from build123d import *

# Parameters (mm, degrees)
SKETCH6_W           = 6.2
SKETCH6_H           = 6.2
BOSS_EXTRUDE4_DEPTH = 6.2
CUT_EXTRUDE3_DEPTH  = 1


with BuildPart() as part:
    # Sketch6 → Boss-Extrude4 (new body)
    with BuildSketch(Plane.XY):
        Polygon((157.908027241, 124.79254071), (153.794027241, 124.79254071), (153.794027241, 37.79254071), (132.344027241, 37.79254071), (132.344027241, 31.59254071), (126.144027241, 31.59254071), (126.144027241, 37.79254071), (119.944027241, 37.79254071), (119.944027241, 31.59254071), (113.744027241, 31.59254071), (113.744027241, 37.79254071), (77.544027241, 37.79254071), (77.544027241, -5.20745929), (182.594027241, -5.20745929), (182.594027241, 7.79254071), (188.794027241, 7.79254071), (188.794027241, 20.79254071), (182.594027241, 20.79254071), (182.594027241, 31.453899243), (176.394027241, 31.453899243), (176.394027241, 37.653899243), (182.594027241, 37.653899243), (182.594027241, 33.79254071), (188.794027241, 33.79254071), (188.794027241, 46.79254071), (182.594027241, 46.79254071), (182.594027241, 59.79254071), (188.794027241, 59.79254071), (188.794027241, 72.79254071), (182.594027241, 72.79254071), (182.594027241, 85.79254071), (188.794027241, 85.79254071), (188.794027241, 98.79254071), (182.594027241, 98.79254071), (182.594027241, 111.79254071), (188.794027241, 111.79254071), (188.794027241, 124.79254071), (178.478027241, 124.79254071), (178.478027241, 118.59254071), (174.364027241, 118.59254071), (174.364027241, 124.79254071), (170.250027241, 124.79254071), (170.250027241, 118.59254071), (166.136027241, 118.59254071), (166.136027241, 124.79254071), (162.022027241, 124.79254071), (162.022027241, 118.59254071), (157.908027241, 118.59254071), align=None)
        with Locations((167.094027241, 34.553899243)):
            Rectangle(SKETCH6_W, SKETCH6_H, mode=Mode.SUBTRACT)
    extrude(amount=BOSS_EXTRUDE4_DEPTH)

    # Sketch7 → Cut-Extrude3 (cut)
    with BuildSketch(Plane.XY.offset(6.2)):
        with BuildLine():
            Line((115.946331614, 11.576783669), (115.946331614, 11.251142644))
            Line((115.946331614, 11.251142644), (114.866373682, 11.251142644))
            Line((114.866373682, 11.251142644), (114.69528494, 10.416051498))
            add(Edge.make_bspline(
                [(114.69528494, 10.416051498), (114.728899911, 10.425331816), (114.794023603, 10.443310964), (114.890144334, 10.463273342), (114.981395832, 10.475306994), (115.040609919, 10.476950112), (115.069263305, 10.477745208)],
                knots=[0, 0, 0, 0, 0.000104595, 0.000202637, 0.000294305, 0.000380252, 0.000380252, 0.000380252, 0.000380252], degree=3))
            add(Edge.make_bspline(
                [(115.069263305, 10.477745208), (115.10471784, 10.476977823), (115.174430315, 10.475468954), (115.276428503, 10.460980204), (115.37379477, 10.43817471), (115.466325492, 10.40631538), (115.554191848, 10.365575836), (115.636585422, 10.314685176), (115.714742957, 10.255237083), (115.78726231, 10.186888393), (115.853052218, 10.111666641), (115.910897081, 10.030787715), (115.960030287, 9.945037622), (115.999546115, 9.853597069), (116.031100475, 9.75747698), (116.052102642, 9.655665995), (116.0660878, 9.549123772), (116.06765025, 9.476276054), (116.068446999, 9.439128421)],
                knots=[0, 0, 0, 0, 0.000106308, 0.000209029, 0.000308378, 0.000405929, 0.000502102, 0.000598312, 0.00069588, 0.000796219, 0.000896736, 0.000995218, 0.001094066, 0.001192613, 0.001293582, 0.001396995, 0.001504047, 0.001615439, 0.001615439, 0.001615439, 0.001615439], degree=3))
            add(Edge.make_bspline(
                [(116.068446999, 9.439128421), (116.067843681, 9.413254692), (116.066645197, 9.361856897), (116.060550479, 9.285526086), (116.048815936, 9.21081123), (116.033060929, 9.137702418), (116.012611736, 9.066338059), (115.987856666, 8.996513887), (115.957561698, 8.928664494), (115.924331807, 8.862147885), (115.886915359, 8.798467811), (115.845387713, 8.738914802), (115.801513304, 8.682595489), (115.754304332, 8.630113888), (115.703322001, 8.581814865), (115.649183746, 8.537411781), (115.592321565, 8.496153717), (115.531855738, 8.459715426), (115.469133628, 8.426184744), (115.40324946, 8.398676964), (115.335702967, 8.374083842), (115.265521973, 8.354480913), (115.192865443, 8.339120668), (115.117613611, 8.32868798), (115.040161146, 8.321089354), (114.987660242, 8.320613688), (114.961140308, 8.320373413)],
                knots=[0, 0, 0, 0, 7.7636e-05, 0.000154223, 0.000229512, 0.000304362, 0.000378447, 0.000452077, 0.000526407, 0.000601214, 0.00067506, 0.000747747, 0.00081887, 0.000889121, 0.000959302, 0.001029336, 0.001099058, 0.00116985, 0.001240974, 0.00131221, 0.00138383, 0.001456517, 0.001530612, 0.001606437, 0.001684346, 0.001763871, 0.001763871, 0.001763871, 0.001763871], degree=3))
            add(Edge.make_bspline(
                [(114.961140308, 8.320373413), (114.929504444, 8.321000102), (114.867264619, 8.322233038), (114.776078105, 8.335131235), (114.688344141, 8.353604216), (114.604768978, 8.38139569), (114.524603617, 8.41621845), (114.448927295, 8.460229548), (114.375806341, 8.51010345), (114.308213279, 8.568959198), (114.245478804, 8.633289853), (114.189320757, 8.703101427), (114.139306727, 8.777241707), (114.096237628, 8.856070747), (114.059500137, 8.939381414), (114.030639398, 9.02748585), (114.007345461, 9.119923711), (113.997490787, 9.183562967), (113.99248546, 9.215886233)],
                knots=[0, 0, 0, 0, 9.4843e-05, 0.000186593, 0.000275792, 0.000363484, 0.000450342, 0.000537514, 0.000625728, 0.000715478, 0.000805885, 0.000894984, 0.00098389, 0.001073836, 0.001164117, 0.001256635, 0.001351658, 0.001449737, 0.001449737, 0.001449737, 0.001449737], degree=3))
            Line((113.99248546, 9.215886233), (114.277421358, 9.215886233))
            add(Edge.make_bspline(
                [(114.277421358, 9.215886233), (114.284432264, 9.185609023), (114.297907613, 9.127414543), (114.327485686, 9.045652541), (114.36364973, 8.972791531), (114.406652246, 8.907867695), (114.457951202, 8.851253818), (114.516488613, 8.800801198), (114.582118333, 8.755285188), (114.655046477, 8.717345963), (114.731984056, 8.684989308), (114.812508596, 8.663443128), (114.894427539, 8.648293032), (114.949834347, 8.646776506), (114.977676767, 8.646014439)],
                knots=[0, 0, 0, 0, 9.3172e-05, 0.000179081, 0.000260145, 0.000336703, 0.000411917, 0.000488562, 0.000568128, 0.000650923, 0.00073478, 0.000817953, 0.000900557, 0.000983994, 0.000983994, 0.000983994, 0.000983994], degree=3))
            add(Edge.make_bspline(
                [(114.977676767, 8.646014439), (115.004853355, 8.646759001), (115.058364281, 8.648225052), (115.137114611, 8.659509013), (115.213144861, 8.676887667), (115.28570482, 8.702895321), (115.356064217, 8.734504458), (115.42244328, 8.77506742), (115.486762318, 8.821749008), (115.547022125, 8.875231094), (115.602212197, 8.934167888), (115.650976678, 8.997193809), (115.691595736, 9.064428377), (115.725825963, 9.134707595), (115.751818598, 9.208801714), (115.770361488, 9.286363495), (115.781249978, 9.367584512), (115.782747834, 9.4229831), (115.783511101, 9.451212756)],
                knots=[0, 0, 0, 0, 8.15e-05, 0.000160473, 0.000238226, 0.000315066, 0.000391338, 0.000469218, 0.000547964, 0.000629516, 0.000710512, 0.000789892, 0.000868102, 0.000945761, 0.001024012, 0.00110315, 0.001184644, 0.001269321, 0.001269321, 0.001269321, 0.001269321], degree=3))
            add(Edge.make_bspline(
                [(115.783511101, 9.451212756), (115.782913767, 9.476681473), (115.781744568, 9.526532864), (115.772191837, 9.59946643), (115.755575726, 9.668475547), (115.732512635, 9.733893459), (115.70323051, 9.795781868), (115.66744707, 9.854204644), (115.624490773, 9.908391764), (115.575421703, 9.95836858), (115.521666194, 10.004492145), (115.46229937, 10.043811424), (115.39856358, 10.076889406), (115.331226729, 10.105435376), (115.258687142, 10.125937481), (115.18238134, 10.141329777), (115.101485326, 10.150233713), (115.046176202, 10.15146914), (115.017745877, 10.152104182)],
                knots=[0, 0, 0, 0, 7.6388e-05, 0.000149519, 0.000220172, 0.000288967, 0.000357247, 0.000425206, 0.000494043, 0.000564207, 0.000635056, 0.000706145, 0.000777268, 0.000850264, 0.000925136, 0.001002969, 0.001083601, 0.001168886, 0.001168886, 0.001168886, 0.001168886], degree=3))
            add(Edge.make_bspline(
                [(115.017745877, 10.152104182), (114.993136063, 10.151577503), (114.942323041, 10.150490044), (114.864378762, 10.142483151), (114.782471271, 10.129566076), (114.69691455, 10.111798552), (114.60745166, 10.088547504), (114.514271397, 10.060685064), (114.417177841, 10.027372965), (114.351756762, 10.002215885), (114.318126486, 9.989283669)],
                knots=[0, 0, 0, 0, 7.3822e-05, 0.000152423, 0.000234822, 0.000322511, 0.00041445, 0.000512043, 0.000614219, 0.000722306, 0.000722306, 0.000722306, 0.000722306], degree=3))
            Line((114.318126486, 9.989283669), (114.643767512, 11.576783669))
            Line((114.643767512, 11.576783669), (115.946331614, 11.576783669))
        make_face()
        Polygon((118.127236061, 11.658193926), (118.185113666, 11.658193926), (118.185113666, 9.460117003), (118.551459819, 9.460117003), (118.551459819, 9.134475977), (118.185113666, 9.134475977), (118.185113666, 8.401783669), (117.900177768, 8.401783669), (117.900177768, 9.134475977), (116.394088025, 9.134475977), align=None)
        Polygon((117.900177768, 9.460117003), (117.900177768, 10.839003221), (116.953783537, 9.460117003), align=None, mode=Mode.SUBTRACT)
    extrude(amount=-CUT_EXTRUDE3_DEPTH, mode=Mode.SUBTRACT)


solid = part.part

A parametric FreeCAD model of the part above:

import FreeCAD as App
import Part
import Sketcher

doc = App.newDocument("Part")
body = doc.addObject("PartDesign::Body", "Body")

sketch1 = doc.addObject("Sketcher::SketchObject", "Sketch")
body.addObject(sketch1)
sketch1.AttachmentSupport = (doc.XY_Plane, [""])
sketch1.MapMode = "FlatFace"
sketch1.addGeometry([
    Part.LineSegment(App.Vector(157.9, 124.8, 0), App.Vector(153.8, 124.8, 0)),
    Part.LineSegment(App.Vector(153.8, 124.8, 0), App.Vector(153.8, 37.8, 0)),
    Part.LineSegment(App.Vector(153.8, 37.8, 0), App.Vector(132.3, 37.8, 0)),
    Part.LineSegment(App.Vector(132.3, 37.8, 0), App.Vector(132.3, 31.6, 0)),
    Part.LineSegment(App.Vector(132.3, 31.6, 0), App.Vector(126.1, 31.6, 0)),
    Part.LineSegment(App.Vector(126.1, 31.6, 0), App.Vector(126.1, 37.8, 0)),
    Part.LineSegment(App.Vector(126.1, 37.8, 0), App.Vector(119.9, 37.8, 0)),
    Part.LineSegment(App.Vector(119.9, 37.8, 0), App.Vector(119.9, 31.6, 0)),
    Part.LineSegment(App.Vector(119.9, 31.6, 0), App.Vector(113.7, 31.6, 0)),
    Part.LineSegment(App.Vector(113.7, 31.6, 0), App.Vector(113.7, 37.8, 0)),
    Part.LineSegment(App.Vector(113.7, 37.8, 0), App.Vector(77.5, 37.8, 0)),
    Part.LineSegment(App.Vector(77.5, 37.8, 0), App.Vector(77.5, -5.2, 0)),
    Part.LineSegment(App.Vector(77.5, -5.2, 0), App.Vector(182.6, -5.2, 0)),
    Part.LineSegment(App.Vector(182.6, -5.2, 0), App.Vector(182.6, 7.8, 0)),
    Part.LineSegment(App.Vector(182.6, 7.8, 0), App.Vector(188.8, 7.8, 0)),
    Part.LineSegment(App.Vector(188.8, 7.8, 0), App.Vector(188.8, 20.8, 0)),
    Part.LineSegment(App.Vector(188.8, 20.8, 0), App.Vector(182.6, 20.8, 0)),
    Part.LineSegment(App.Vector(182.6, 20.8, 0), App.Vector(182.6, 31.5, 0)),
    Part.LineSegment(App.Vector(182.6, 31.5, 0), App.Vector(176.4, 31.5, 0)),
    Part.LineSegment(App.Vector(176.4, 31.5, 0), App.Vector(176.4, 37.7, 0)),
    Part.LineSegment(App.Vector(176.4, 37.7, 0), App.Vector(182.6, 37.7, 0)),
    Part.LineSegment(App.Vector(182.6, 37.7, 0), App.Vector(182.6, 33.8, 0)),
    Part.LineSegment(App.Vector(182.6, 33.8, 0), App.Vector(188.8, 33.8, 0)),
    Part.LineSegment(App.Vector(188.8, 33.8, 0), App.Vector(188.8, 46.8, 0)),
    Part.LineSegment(App.Vector(188.8, 46.8, 0), App.Vector(182.6, 46.8, 0)),
    Part.LineSegment(App.Vector(182.6, 46.8, 0), App.Vector(182.6, 59.8, 0)),
    Part.LineSegment(App.Vector(182.6, 59.8, 0), App.Vector(188.8, 59.8, 0)),
    Part.LineSegment(App.Vector(188.8, 59.8, 0), App.Vector(188.8, 72.8, 0)),
    Part.LineSegment(App.Vector(188.8, 72.8, 0), App.Vector(182.6, 72.8, 0)),
    Part.LineSegment(App.Vector(182.6, 72.8, 0), App.Vector(182.6, 85.8, 0)),
    Part.LineSegment(App.Vector(182.6, 85.8, 0), App.Vector(188.8, 85.8, 0)),
    Part.LineSegment(App.Vector(188.8, 85.8, 0), App.Vector(188.8, 98.8, 0)),
    Part.LineSegment(App.Vector(188.8, 98.8, 0), App.Vector(182.6, 98.8, 0)),
    Part.LineSegment(App.Vector(182.6, 98.8, 0), App.Vector(182.6, 111.8, 0)),
    Part.LineSegment(App.Vector(182.6, 111.8, 0), App.Vector(188.8, 111.8, 0)),
    Part.LineSegment(App.Vector(188.8, 111.8, 0), App.Vector(188.8, 124.8, 0)),
    Part.LineSegment(App.Vector(188.8, 124.8, 0), App.Vector(178.5, 124.8, 0)),
    Part.LineSegment(App.Vector(178.5, 124.8, 0), App.Vector(178.5, 118.6, 0)),
    Part.LineSegment(App.Vector(178.5, 118.6, 0), App.Vector(174.4, 118.6, 0)),
    Part.LineSegment(App.Vector(174.4, 118.6, 0), App.Vector(174.4, 124.8, 0)),
    Part.LineSegment(App.Vector(174.4, 124.8, 0), App.Vector(170.3, 124.8, 0)),
    Part.LineSegment(App.Vector(170.3, 124.8, 0), App.Vector(170.3, 118.6, 0)),
    Part.LineSegment(App.Vector(170.3, 118.6, 0), App.Vector(166.1, 118.6, 0)),
    Part.LineSegment(App.Vector(166.1, 118.6, 0), App.Vector(166.1, 124.8, 0)),
    Part.LineSegment(App.Vector(166.1, 124.8, 0), App.Vector(162, 124.8, 0)),
    Part.LineSegment(App.Vector(162, 124.8, 0), App.Vector(162, 118.6, 0)),
    Part.LineSegment(App.Vector(162, 118.6, 0), App.Vector(157.9, 118.6, 0)),
    Part.LineSegment(App.Vector(157.9, 118.6, 0), App.Vector(157.9, 124.8, 0)),
    Part.LineSegment(App.Vector(170.2, 31.5, 0), App.Vector(164, 31.5, 0)),
    Part.LineSegment(App.Vector(164, 31.5, 0), App.Vector(164, 37.7, 0)),
    Part.LineSegment(App.Vector(164, 37.7, 0), App.Vector(170.2, 37.7, 0)),
    Part.LineSegment(App.Vector(170.2, 37.7, 0), App.Vector(170.2, 31.5, 0)),
], False)
sketch1.addConstraint([
    Sketcher.Constraint("Coincident", 0, 2, 1, 1),
    Sketcher.Constraint("Coincident", 1, 2, 2, 1),
    Sketcher.Constraint("Coincident", 2, 2, 3, 1),
    Sketcher.Constraint("Coincident", 3, 2, 4, 1),
    Sketcher.Constraint("Coincident", 4, 2, 5, 1),
    Sketcher.Constraint("Coincident", 5, 2, 6, 1),
    Sketcher.Constraint("Coincident", 6, 2, 7, 1),
    Sketcher.Constraint("Coincident", 7, 2, 8, 1),
    Sketcher.Constraint("Coincident", 8, 2, 9, 1),
    Sketcher.Constraint("Coincident", 9, 2, 10, 1),
    Sketcher.Constraint("Coincident", 10, 2, 11, 1),
    Sketcher.Constraint("Coincident", 11, 2, 12, 1),
    Sketcher.Constraint("Coincident", 12, 2, 13, 1),
    Sketcher.Constraint("Coincident", 13, 2, 14, 1),
    Sketcher.Constraint("Coincident", 14, 2, 15, 1),
    Sketcher.Constraint("Coincident", 15, 2, 16, 1),
    Sketcher.Constraint("Coincident", 16, 2, 17, 1),
    Sketcher.Constraint("Coincident", 17, 2, 18, 1),
    Sketcher.Constraint("Coincident", 18, 2, 19, 1),
    Sketcher.Constraint("Coincident", 19, 2, 20, 1),
    Sketcher.Constraint("Coincident", 20, 2, 21, 1),
    Sketcher.Constraint("Coincident", 21, 2, 22, 1),
    Sketcher.Constraint("Coincident", 22, 2, 23, 1),
    Sketcher.Constraint("Coincident", 23, 2, 24, 1),
    Sketcher.Constraint("Coincident", 24, 2, 25, 1),
    Sketcher.Constraint("Coincident", 25, 2, 26, 1),
    Sketcher.Constraint("Coincident", 26, 2, 27, 1),
    Sketcher.Constraint("Coincident", 27, 2, 28, 1),
    Sketcher.Constraint("Coincident", 28, 2, 29, 1),
    Sketcher.Constraint("Coincident", 29, 2, 30, 1),
    Sketcher.Constraint("Coincident", 30, 2, 31, 1),
    Sketcher.Constraint("Coincident", 31, 2, 32, 1),
    Sketcher.Constraint("Coincident", 32, 2, 33, 1),
    Sketcher.Constraint("Coincident", 33, 2, 34, 1),
    Sketcher.Constraint("Coincident", 34, 2, 35, 1),
    Sketcher.Constraint("Coincident", 35, 2, 36, 1),
    Sketcher.Constraint("Coincident", 36, 2, 37, 1),
    Sketcher.Constraint("Coincident", 37, 2, 38, 1),
    Sketcher.Constraint("Coincident", 38, 2, 39, 1),
    Sketcher.Constraint("Coincident", 39, 2, 40, 1),
    Sketcher.Constraint("Coincident", 40, 2, 41, 1),
    Sketcher.Constraint("Coincident", 41, 2, 42, 1),
    Sketcher.Constraint("Coincident", 42, 2, 43, 1),
    Sketcher.Constraint("Coincident", 43, 2, 44, 1),
    Sketcher.Constraint("Coincident", 44, 2, 45, 1),
    Sketcher.Constraint("Coincident", 45, 2, 46, 1),
    Sketcher.Constraint("Coincident", 46, 2, 47, 1),
    Sketcher.Constraint("Coincident", 47, 2, 0, 1),
    Sketcher.Constraint("Coincident", 48, 2, 49, 1),
    Sketcher.Constraint("Coincident", 49, 2, 50, 1),
    Sketcher.Constraint("Coincident", 50, 2, 51, 1),
    Sketcher.Constraint("Coincident", 51, 2, 48, 1),
    Sketcher.Constraint("Horizontal", 0),
    Sketcher.Constraint("Vertical", 1),
    Sketcher.Constraint("Horizontal", 2),
    Sketcher.Constraint("Vertical", 3),
    Sketcher.Constraint("Horizontal", 4),
    Sketcher.Constraint("Vertical", 5),
    Sketcher.Constraint("Horizontal", 6),
    Sketcher.Constraint("Vertical", 7),
    Sketcher.Constraint("Horizontal", 8),
    Sketcher.Constraint("Vertical", 9),
    Sketcher.Constraint("Horizontal", 10),
    Sketcher.Constraint("Vertical", 11),
    Sketcher.Constraint("Horizontal", 12),
    Sketcher.Constraint("Vertical", 13),
    Sketcher.Constraint("Horizontal", 14),
    Sketcher.Constraint("Vertical", 15),
    Sketcher.Constraint("Horizontal", 16),
    Sketcher.Constraint("Vertical", 17),
    Sketcher.Constraint("Horizontal", 18),
    Sketcher.Constraint("Vertical", 19),
    Sketcher.Constraint("Horizontal", 20),
    Sketcher.Constraint("Vertical", 21),
    Sketcher.Constraint("Horizontal", 22),
    Sketcher.Constraint("Vertical", 23),
    Sketcher.Constraint("Horizontal", 24),
    Sketcher.Constraint("Vertical", 25),
    Sketcher.Constraint("Horizontal", 26),
    Sketcher.Constraint("Vertical", 27),
    Sketcher.Constraint("Horizontal", 28),
    Sketcher.Constraint("Vertical", 29),
    Sketcher.Constraint("Horizontal", 30),
    Sketcher.Constraint("Vertical", 31),
    Sketcher.Constraint("Horizontal", 32),
    Sketcher.Constraint("Vertical", 33),
    Sketcher.Constraint("Horizontal", 34),
    Sketcher.Constraint("Vertical", 35),
    Sketcher.Constraint("Horizontal", 36),
    Sketcher.Constraint("Vertical", 37),
    Sketcher.Constraint("Horizontal", 38),
    Sketcher.Constraint("Vertical", 39),
    Sketcher.Constraint("Horizontal", 40),
    Sketcher.Constraint("Vertical", 41),
    Sketcher.Constraint("Horizontal", 42),
    Sketcher.Constraint("Vertical", 43),
    Sketcher.Constraint("Horizontal", 44),
    Sketcher.Constraint("Vertical", 45),
    Sketcher.Constraint("Horizontal", 46),
    Sketcher.Constraint("Vertical", 47),
    Sketcher.Constraint("Horizontal", 48),
    Sketcher.Constraint("Vertical", 49),
    Sketcher.Constraint("Horizontal", 50),
    Sketcher.Constraint("Vertical", 51),
    Sketcher.Constraint("Horizontal", 2, 2, 5, 2),
    Sketcher.Constraint("Horizontal", 4, 2, 7, 2),
    Sketcher.Constraint("Horizontal", 6, 2, 9, 2),
    Sketcher.Constraint("Horizontal", 0, 2, 35, 2),
    Sketcher.Constraint("Horizontal", 36, 2, 39, 2),
    Sketcher.Constraint("Horizontal", 38, 2, 41, 2),
    Sketcher.Constraint("Horizontal", 40, 2, 43, 2),
    Sketcher.Constraint("Horizontal", 42, 2, 45, 2),
    Sketcher.Constraint("Horizontal", 18, 2, 48, 2),
    Sketcher.Constraint("Horizontal", 20, 2, 49, 2),
    Sketcher.Constraint("Vertical", 13, 2, 16, 2),
    Sketcher.Constraint("Vertical", 17, 2, 20, 2),
    Sketcher.Constraint("Vertical", 15, 2, 22, 2),
    Sketcher.Constraint("Vertical", 21, 2, 24, 2),
    Sketcher.Constraint("Vertical", 23, 2, 26, 2),
    Sketcher.Constraint("Vertical", 25, 2, 28, 2),
    Sketcher.Constraint("Vertical", 27, 2, 30, 2),
    Sketcher.Constraint("Vertical", 29, 2, 32, 2),
    Sketcher.Constraint("Vertical", 31, 2, 34, 2),
    Sketcher.Constraint("Equal", 4, 6),
    Sketcher.Constraint("Equal", 6, 8),
    Sketcher.Constraint("Equal", 8, 14),
    Sketcher.Constraint("Equal", 16, 18),
    Sketcher.Constraint("Equal", 0, 38),
    Sketcher.Constraint("Equal", 38, 40),
    Sketcher.Constraint("Equal", 40, 42),
    Sketcher.Constraint("Equal", 42, 44),
    Sketcher.Constraint("Equal", 44, 46),
    Sketcher.Constraint("Equal", 34, 48),
    Sketcher.Constraint("Equal", 50, 3),
    Sketcher.Constraint("Equal", 13, 15),
    Sketcher.Constraint("Equal", 9, 19),
    Sketcher.Constraint("Equal", 15, 23),
    Sketcher.Constraint("Equal", 23, 25),
    Sketcher.Constraint("Equal", 25, 27),
    Sketcher.Constraint("Equal", 27, 29),
    Sketcher.Constraint("Equal", 29, 31),
    Sketcher.Constraint("Equal", 31, 33),
    Sketcher.Constraint("Equal", 33, 35),
    Sketcher.Constraint("Equal", 19, 37),
    Sketcher.Constraint("DistanceY", 1, 2, 1, 1, 87.0),
    Sketcher.Constraint("DistanceY", 11, 2, 11, 1, 43.0),
    Sketcher.Constraint("DistanceY", 13, 1, 13, 2, 13.0),
    Sketcher.Constraint("DistanceX", 4, 2, 4, 1, 6.2),
    Sketcher.Constraint("DistanceX", 10, 2, 10, 1, 36.2),
    Sketcher.Constraint("DistanceX", 1, 2, 14, 2, 35.0),
    Sketcher.Constraint("DistanceX", 2, 2, 2, 1, 21.45),
    Sketcher.Constraint("DistanceX", 1, 2, 48, 2, 10.2),
    Sketcher.Constraint("DistanceX", 0, 2, 0, 1, 4.114),
    Sketcher.Constraint("DistanceY", 17, 1, 17, 2, 10.661359),
    Sketcher.Constraint("DistanceY", -1, 1, 17, 2, 31.453899),
    Sketcher.Constraint("DistanceX", -1, 1, 0, 2, 153.794027),
])
pad1 = doc.addObject("PartDesign::Pad", "Pad")
body.addObject(pad1)
pad1.Profile = sketch1
pad1.Length = 6.2

sketch2 = doc.addObject("Sketcher::SketchObject", "Sketch001")
body.addObject(sketch2)
sketch2.AttachmentSupport = (doc.XY_Plane, [""])
sketch2.MapMode = "FlatFace"
sketch2.AttachmentOffset = App.Placement(App.Vector(0, 0, 6.2), App.Rotation())
sketch2.addGeometry([
    Part.LineSegment(App.Vector(115.946332, 11.251143, 0), App.Vector(115.946332, 11.576784, 0)),
    Part.LineSegment(App.Vector(115.946332, 11.576784, 0), App.Vector(114.643768, 11.576784, 0)),
    Part.LineSegment(App.Vector(114.643768, 11.576784, 0), App.Vector(114.318126, 9.989284, 0)),
    Part.BSplineCurve([App.Vector(115.017746, 10.152104, 0), App.Vector(114.993136, 10.151578, 0), App.Vector(114.942323, 10.15049, 0), App.Vector(114.864379, 10.142483, 0), App.Vector(114.782471, 10.129566, 0), App.Vector(114.696915, 10.111799, 0), App.Vector(114.607452, 10.088548, 0), App.Vector(114.514271, 10.060685, 0), App.Vector(114.417178, 10.027373, 0), App.Vector(114.351757, 10.002216, 0), App.Vector(114.318126, 9.989284, 0)], [4, 1, 1, 1, 1, 1, 1, 1, 4], [0, 0.000073822, 0.000152423, 0.000234822, 0.000322511, 0.00041445, 0.000512043, 0.000614219, 0.000722306], False, 3, [1, 1, 1, 1, 1, 1, 1, 1, 1, 1, 1], False),
    Part.BSplineCurve([App.Vector(115.783511, 9.451213, 0), App.Vector(115.782914, 9.476681, 0), App.Vector(115.781745, 9.526533, 0), App.Vector(115.772192, 9.599466, 0), App.Vector(115.755576, 9.668476, 0), App.Vector(115.732513, 9.733893, 0), App.Vector(115.703231, 9.795782, 0), App.Vector(115.667447, 9.854205, 0), App.Vector(115.624491, 9.908392, 0), App.Vector(115.575422, 9.958369, 0), App.Vector(115.521666, 10.004492, 0), App.Vector(115.462299, 10.043811, 0), App.Vector(115.398564, 10.076889, 0), App.Vector(115.331227, 10.105435, 0), App.Vector(115.258687, 10.125937, 0), App.Vector(115.182381, 10.14133, 0), App.Vector(115.101485, 10.150234, 0), App.Vector(115.046176, 10.151469, 0), App.Vector(115.017746, 10.152104, 0)], [4, 1, 1, 1, 1, 1, 1, 1, 1, 1, 1, 1, 1, 1, 1, 1, 4], [0, 0.000076388, 0.000149519, 0.000220172, 0.000288967, 0.000357247, 0.000425206, 0.000494043, 0.000564207, 0.000635056, 0.000706145, 0.000777268, 0.000850264, 0.000925136, 0.001002969, 0.001083601, 0.001168886], False, 3, [1, 1, 1, 1, 1, 1, 1, 1, 1, 1, 1, 1, 1, 1, 1, 1, 1, 1, 1], False),
    Part.BSplineCurve([App.Vector(114.977677, 8.646014, 0), App.Vector(115.004853, 8.646759, 0), App.Vector(115.058364, 8.648225, 0), App.Vector(115.137115, 8.659509, 0), App.Vector(115.213145, 8.676888, 0), App.Vector(115.285705, 8.702895, 0), App.Vector(115.356064, 8.734504, 0), App.Vector(115.422443, 8.775067, 0), App.Vector(115.486762, 8.821749, 0), App.Vector(115.547022, 8.875231, 0), App.Vector(115.602212, 8.934168, 0), App.Vector(115.650977, 8.997194, 0), App.Vector(115.691596, 9.064428, 0), App.Vector(115.725826, 9.134708, 0), App.Vector(115.751819, 9.208802, 0), App.Vector(115.770361, 9.286363, 0), App.Vector(115.78125, 9.367585, 0), App.Vector(115.782748, 9.422983, 0), App.Vector(115.783511, 9.451213, 0)], [4, 1, 1, 1, 1, 1, 1, 1, 1, 1, 1, 1, 1, 1, 1, 1, 4], [0, 0.0000815, 0.000160473, 0.000238226, 0.000315066, 0.000391338, 0.000469218, 0.000547964, 0.000629516, 0.000710512, 0.000789892, 0.000868102, 0.000945761, 0.001024012, 0.00110315, 0.001184644, 0.001269321], False, 3, [1, 1, 1, 1, 1, 1, 1, 1, 1, 1, 1, 1, 1, 1, 1, 1, 1, 1, 1], False),
    Part.BSplineCurve([App.Vector(114.277421, 9.215886, 0), App.Vector(114.284432, 9.185609, 0), App.Vector(114.297908, 9.127415, 0), App.Vector(114.327486, 9.045653, 0), App.Vector(114.36365, 8.972792, 0), App.Vector(114.406652, 8.907868, 0), App.Vector(114.457951, 8.851254, 0), App.Vector(114.516489, 8.800801, 0), App.Vector(114.582118, 8.755285, 0), App.Vector(114.655046, 8.717346, 0), App.Vector(114.731984, 8.684989, 0), App.Vector(114.812509, 8.663443, 0), App.Vector(114.894428, 8.648293, 0), App.Vector(114.949834, 8.646777, 0), App.Vector(114.977677, 8.646014, 0)], [4, 1, 1, 1, 1, 1, 1, 1, 1, 1, 1, 1, 4], [0, 0.000093172, 0.000179081, 0.000260145, 0.000336703, 0.000411917, 0.000488562, 0.000568128, 0.000650923, 0.00073478, 0.000817953, 0.000900557, 0.000983994], False, 3, [1, 1, 1, 1, 1, 1, 1, 1, 1, 1, 1, 1, 1, 1, 1], False),
    Part.LineSegment(App.Vector(114.277421, 9.215886, 0), App.Vector(113.992485, 9.215886, 0)),
    Part.BSplineCurve([App.Vector(114.96114, 8.320373, 0), App.Vector(114.929504, 8.321, 0), App.Vector(114.867265, 8.322233, 0), App.Vector(114.776078, 8.335131, 0), App.Vector(114.688344, 8.353604, 0), App.Vector(114.604769, 8.381396, 0), App.Vector(114.524604, 8.416218, 0), App.Vector(114.448927, 8.46023, 0), App.Vector(114.375806, 8.510103, 0), App.Vector(114.308213, 8.568959, 0), App.Vector(114.245479, 8.63329, 0), App.Vector(114.189321, 8.703101, 0), App.Vector(114.139307, 8.777242, 0), App.Vector(114.096238, 8.856071, 0), App.Vector(114.0595, 8.939381, 0), App.Vector(114.030639, 9.027486, 0), App.Vector(114.007345, 9.119924, 0), App.Vector(113.997491, 9.183563, 0), App.Vector(113.992485, 9.215886, 0)], [4, 1, 1, 1, 1, 1, 1, 1, 1, 1, 1, 1, 1, 1, 1, 1, 4], [0, 0.000094843, 0.000186593, 0.000275792, 0.000363484, 0.000450342, 0.000537514, 0.000625728, 0.000715478, 0.000805885, 0.000894984, 0.00098389, 0.001073836, 0.001164117, 0.001256635, 0.001351658, 0.001449737], False, 3, [1, 1, 1, 1, 1, 1, 1, 1, 1, 1, 1, 1, 1, 1, 1, 1, 1, 1, 1], False),
    Part.BSplineCurve([App.Vector(116.068447, 9.439128, 0), App.Vector(116.067844, 9.413255, 0), App.Vector(116.066645, 9.361857, 0), App.Vector(116.06055, 9.285526, 0), App.Vector(116.048816, 9.210811, 0), App.Vector(116.033061, 9.137702, 0), App.Vector(116.012612, 9.066338, 0), App.Vector(115.987857, 8.996514, 0), App.Vector(115.957562, 8.928664, 0), App.Vector(115.924332, 8.862148, 0), App.Vector(115.886915, 8.798468, 0), App.Vector(115.845388, 8.738915, 0), App.Vector(115.801513, 8.682595, 0), App.Vector(115.754304, 8.630114, 0), App.Vector(115.703322, 8.581815, 0), App.Vector(115.649184, 8.537412, 0), App.Vector(115.592322, 8.496154, 0), App.Vector(115.531856, 8.459715, 0), App.Vector(115.469134, 8.426185, 0), App.Vector(115.403249, 8.398677, 0), App.Vector(115.335703, 8.374084, 0), App.Vector(115.265522, 8.354481, 0), App.Vector(115.192865, 8.339121, 0), App.Vector(115.117614, 8.328688, 0), App.Vector(115.040161, 8.321089, 0), App.Vector(114.98766, 8.320614, 0), App.Vector(114.96114, 8.320373, 0)], [4, 1, 1, 1, 1, 1, 1, 1, 1, 1, 1, 1, 1, 1, 1, 1, 1, 1, 1, 1, 1, 1, 1, 1, 4], [0, 0.000077636, 0.000154223, 0.000229512, 0.000304362, 0.000378447, 0.000452077, 0.000526407, 0.000601214, 0.00067506, 0.000747747, 0.00081887, 0.000889121, 0.000959302, 0.001029336, 0.001099058, 0.00116985, 0.001240974, 0.00131221, 0.00138383, 0.001456517, 0.001530612, 0.001606437, 0.001684346, 0.001763871], False, 3, [1, 1, 1, 1, 1, 1, 1, 1, 1, 1, 1, 1, 1, 1, 1, 1, 1, 1, 1, 1, 1, 1, 1, 1, 1, 1, 1], False),
    Part.BSplineCurve([App.Vector(115.069263, 10.477745, 0), App.Vector(115.104718, 10.476978, 0), App.Vector(115.17443, 10.475469, 0), App.Vector(115.276429, 10.46098, 0), App.Vector(115.373795, 10.438175, 0), App.Vector(115.466325, 10.406315, 0), App.Vector(115.554192, 10.365576, 0), App.Vector(115.636585, 10.314685, 0), App.Vector(115.714743, 10.255237, 0), App.Vector(115.787262, 10.186888, 0), App.Vector(115.853052, 10.111667, 0), App.Vector(115.910897, 10.030788, 0), App.Vector(115.96003, 9.945038, 0), App.Vector(115.999546, 9.853597, 0), App.Vector(116.0311, 9.757477, 0), App.Vector(116.052103, 9.655666, 0), App.Vector(116.066088, 9.549124, 0), App.Vector(116.06765, 9.476276, 0), App.Vector(116.068447, 9.439128, 0)], [4, 1, 1, 1, 1, 1, 1, 1, 1, 1, 1, 1, 1, 1, 1, 1, 4], [0, 0.000106308, 0.000209029, 0.000308378, 0.000405929, 0.000502102, 0.000598312, 0.00069588, 0.000796219, 0.000896736, 0.000995218, 0.001094066, 0.001192613, 0.001293582, 0.001396995, 0.001504047, 0.001615439], False, 3, [1, 1, 1, 1, 1, 1, 1, 1, 1, 1, 1, 1, 1, 1, 1, 1, 1, 1, 1], False),
    Part.BSplineCurve([App.Vector(114.695285, 10.416051, 0), App.Vector(114.7289, 10.425332, 0), App.Vector(114.794024, 10.443311, 0), App.Vector(114.890144, 10.463273, 0), App.Vector(114.981396, 10.475307, 0), App.Vector(115.04061, 10.47695, 0), App.Vector(115.069263, 10.477745, 0)], [4, 1, 1, 1, 4], [0, 0.000104595, 0.000202637, 0.000294305, 0.000380252], False, 3, [1, 1, 1, 1, 1, 1, 1], False),
    Part.LineSegment(App.Vector(114.695285, 10.416051, 0), App.Vector(114.866374, 11.251143, 0)),
    Part.LineSegment(App.Vector(114.866374, 11.251143, 0), App.Vector(115.946332, 11.251143, 0)),
    Part.LineSegment(App.Vector(118.185114, 11.658194, 0), App.Vector(118.127236, 11.658194, 0)),
    Part.LineSegment(App.Vector(118.127236, 11.658194, 0), App.Vector(116.394088, 9.134476, 0)),
    Part.LineSegment(App.Vector(116.394088, 9.134476, 0), App.Vector(117.900178, 9.134476, 0)),
    Part.LineSegment(App.Vector(117.900178, 9.134476, 0), App.Vector(117.900178, 8.401784, 0)),
    Part.LineSegment(App.Vector(117.900178, 8.401784, 0), App.Vector(118.185114, 8.401784, 0)),
    Part.LineSegment(App.Vector(118.185114, 8.401784, 0), App.Vector(118.185114, 9.134476, 0)),
    Part.LineSegment(App.Vector(118.185114, 9.134476, 0), App.Vector(118.55146, 9.134476, 0)),
    Part.LineSegment(App.Vector(118.55146, 9.134476, 0), App.Vector(118.55146, 9.460117, 0)),
    Part.LineSegment(App.Vector(118.55146, 9.460117, 0), App.Vector(118.185114, 9.460117, 0)),
    Part.LineSegment(App.Vector(118.185114, 9.460117, 0), App.Vector(118.185114, 11.658194, 0)),
    Part.LineSegment(App.Vector(117.900178, 9.460117, 0), App.Vector(116.953784, 9.460117, 0)),
    Part.LineSegment(App.Vector(116.953784, 9.460117, 0), App.Vector(117.900178, 10.839003, 0)),
    Part.LineSegment(App.Vector(117.900178, 10.839003, 0), App.Vector(117.900178, 9.460117, 0)),
], False)
sketch2.addConstraint([
    Sketcher.Constraint("Block", 3),
    Sketcher.Constraint("Block", 4),
    Sketcher.Constraint("Block", 5),
    Sketcher.Constraint("Block", 6),
    Sketcher.Constraint("Block", 8),
    Sketcher.Constraint("Block", 9),
    Sketcher.Constraint("Block", 10),
    Sketcher.Constraint("Block", 11),
    Sketcher.Constraint("Coincident", 0, 2, 1, 1),
    Sketcher.Constraint("Coincident", 1, 2, 2, 1),
    Sketcher.Constraint("Coincident", 2, 2, 3, 2),
    Sketcher.Constraint("Coincident", 6, 1, 7, 1),
    Sketcher.Constraint("Coincident", 7, 2, 8, 2),
    Sketcher.Constraint("Coincident", 11, 1, 12, 1),
    Sketcher.Constraint("Coincident", 12, 2, 13, 1),
    Sketcher.Constraint("Coincident", 13, 2, 0, 1),
    Sketcher.Constraint("Coincident", 14, 2, 15, 1),
    Sketcher.Constraint("Coincident", 15, 2, 16, 1),
    Sketcher.Constraint("Coincident", 16, 2, 17, 1),
    Sketcher.Constraint("Coincident", 17, 2, 18, 1),
    Sketcher.Constraint("Coincident", 18, 2, 19, 1),
    Sketcher.Constraint("Coincident", 19, 2, 20, 1),
    Sketcher.Constraint("Coincident", 20, 2, 21, 1),
    Sketcher.Constraint("Coincident", 21, 2, 22, 1),
    Sketcher.Constraint("Coincident", 22, 2, 23, 1),
    Sketcher.Constraint("Coincident", 23, 2, 14, 1),
    Sketcher.Constraint("Coincident", 24, 2, 25, 1),
    Sketcher.Constraint("Coincident", 25, 2, 26, 1),
    Sketcher.Constraint("Coincident", 26, 2, 24, 1),
    Sketcher.Constraint("Vertical", 0),
    Sketcher.Constraint("Horizontal", 1),
    Sketcher.Constraint("Horizontal", 13),
    Sketcher.Constraint("Horizontal", 14),
    Sketcher.Constraint("Horizontal", 16),
    Sketcher.Constraint("Vertical", 17),
    Sketcher.Constraint("Horizontal", 18),
    Sketcher.Constraint("Vertical", 19),
    Sketcher.Constraint("Horizontal", 20),
    Sketcher.Constraint("Vertical", 21),
    Sketcher.Constraint("Horizontal", 22),
    Sketcher.Constraint("Vertical", 23),
    Sketcher.Constraint("Horizontal", 24),
    Sketcher.Constraint("Vertical", 26),
    Sketcher.Constraint("DistanceY", 17, 2, 0, 2, 3.175),
    Sketcher.Constraint("DistanceX", 16, 1, 16, 2, 1.50609),
    Sketcher.Constraint("DistanceY", 0, 1, 0, 2, 0.325641),
    Sketcher.Constraint("DistanceY", 21, 1, 21, 2, 0.325641),
    Sketcher.Constraint("DistanceY", 2, 2, 1, 2, 1.5875),
    Sketcher.Constraint("Distance", 15, 3.061528),
    Sketcher.Constraint("Distance", 25, 1.67242),
    Sketcher.Constraint("DistanceX", 1, 2, 1, 1, 1.302564),
    Sketcher.Constraint("DistanceX", 13, 1, 13, 2, 1.079958),
    Sketcher.Constraint("DistanceX", 14, 2, 14, 1, 0.057878),
    Sketcher.Constraint("DistanceX", 18, 1, 18, 2, 0.284936),
    Sketcher.Constraint("DistanceX", 20, 1, 20, 2, 0.366346),
    Sketcher.Constraint("DistanceX", 22, 2, 22, 1, 0.366346),
    Sketcher.Constraint("DistanceX", 24, 2, 24, 1, 0.946394),
    Sketcher.Constraint("DistanceY", 17, 2, 17, 1, 0.732692),
    Sketcher.Constraint("DistanceY", 19, 1, 19, 2, 0.732692),
    Sketcher.Constraint("DistanceX", -1, 1, 0, 2, 115.946332),
    Sketcher.Constraint("DistanceX", -1, 1, 15, 2, 116.394088),
    Sketcher.Constraint("DistanceY", 15, 2, 24, 2, 0.325641),
    Sketcher.Constraint("DistanceX", 24, 2, 22, 2, 1.23133),
])
pocket1 = doc.addObject("PartDesign::Pocket", "Pocket")
body.addObject(pocket1)
pocket1.Profile = sketch2
pocket1.Length = 1

doc.recompute()
